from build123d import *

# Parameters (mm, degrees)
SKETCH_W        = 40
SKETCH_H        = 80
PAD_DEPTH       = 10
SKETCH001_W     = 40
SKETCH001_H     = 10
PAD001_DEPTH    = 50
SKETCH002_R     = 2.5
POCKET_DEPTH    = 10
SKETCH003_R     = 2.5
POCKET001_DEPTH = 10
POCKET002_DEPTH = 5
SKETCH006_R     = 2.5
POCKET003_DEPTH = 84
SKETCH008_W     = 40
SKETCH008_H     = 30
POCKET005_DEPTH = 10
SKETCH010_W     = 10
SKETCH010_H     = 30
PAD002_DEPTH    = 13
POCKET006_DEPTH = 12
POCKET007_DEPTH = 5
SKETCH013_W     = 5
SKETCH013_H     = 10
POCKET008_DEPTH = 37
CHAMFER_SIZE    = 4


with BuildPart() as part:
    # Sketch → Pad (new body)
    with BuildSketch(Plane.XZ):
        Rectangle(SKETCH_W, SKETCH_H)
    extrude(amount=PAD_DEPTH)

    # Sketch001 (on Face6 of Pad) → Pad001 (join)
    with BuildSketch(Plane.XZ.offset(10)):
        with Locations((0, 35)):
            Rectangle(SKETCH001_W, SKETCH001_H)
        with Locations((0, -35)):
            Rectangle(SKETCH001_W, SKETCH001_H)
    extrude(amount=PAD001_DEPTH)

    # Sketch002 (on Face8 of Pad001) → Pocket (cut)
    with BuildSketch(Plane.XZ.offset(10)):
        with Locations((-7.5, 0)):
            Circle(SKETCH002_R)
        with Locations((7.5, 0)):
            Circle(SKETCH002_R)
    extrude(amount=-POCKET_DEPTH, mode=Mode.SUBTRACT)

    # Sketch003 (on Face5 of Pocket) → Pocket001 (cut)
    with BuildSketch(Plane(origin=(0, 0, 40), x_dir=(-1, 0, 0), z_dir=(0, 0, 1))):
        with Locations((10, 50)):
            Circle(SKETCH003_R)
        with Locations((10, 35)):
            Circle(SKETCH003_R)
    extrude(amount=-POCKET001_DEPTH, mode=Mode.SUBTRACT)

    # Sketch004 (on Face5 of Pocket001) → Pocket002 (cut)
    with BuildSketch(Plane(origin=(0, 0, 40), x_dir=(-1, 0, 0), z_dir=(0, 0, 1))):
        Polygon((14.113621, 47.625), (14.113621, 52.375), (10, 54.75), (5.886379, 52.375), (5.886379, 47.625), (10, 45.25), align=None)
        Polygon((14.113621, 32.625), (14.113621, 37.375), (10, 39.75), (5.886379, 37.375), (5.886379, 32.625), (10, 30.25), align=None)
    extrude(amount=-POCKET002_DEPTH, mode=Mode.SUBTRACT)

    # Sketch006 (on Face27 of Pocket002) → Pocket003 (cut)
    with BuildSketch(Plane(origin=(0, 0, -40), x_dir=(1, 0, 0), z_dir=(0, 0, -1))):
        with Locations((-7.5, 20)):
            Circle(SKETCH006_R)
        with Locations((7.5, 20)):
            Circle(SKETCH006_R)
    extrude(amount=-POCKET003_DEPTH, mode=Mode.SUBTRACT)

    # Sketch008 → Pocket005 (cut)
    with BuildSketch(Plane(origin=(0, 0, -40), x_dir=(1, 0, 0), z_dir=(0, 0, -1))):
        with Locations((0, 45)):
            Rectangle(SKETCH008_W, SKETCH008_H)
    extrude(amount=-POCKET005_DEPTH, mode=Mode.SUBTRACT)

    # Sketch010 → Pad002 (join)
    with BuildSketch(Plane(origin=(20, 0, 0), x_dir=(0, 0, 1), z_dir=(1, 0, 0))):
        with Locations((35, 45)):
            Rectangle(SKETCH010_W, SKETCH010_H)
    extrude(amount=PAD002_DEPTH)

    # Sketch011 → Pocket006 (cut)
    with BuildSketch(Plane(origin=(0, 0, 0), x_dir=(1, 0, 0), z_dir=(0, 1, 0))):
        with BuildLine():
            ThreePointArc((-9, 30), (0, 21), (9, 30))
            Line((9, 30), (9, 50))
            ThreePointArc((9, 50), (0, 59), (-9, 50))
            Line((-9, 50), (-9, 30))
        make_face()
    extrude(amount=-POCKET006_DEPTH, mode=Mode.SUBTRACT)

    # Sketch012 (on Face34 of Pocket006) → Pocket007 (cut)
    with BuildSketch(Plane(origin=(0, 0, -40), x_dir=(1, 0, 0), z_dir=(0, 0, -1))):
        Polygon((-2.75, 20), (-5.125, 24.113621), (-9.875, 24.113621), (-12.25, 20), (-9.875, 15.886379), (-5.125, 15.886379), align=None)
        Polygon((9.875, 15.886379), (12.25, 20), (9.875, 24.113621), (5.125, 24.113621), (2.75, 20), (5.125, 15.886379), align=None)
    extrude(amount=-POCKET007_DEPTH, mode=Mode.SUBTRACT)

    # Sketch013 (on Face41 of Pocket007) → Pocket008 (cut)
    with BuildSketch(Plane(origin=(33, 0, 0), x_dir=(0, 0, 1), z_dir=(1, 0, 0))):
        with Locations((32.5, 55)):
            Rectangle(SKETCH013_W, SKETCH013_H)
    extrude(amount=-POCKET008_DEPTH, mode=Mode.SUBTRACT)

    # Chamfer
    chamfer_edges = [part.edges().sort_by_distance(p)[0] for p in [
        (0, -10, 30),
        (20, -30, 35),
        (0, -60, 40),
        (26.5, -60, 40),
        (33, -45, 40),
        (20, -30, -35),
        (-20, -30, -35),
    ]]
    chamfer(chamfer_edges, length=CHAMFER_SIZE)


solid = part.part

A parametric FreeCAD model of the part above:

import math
import FreeCAD as App
import Part
import Sketcher
Q = App.Units.Quantity


def edges_at(feature, points):
    """Names of the edges that pass closest to the given points."""
    edges = feature.Shape.Edges
    near = lambda p: min(range(len(edges)), key=lambda i: edges[i].distToShape(Part.Vertex(*p))[0])
    return sorted({f"Edge{near(p) + 1}" for p in points})

doc = App.newDocument("Part")
params = doc.addObject("Spreadsheet::Sheet", "Params")
for row, (alias, value) in enumerate([
    ("sketch1_width", "40 mm"),
    ("sketch1_height", "80 mm"),
    ("pad1_length", "10 mm"),
    ("sketch2_width", "40 mm"),
    ("sketch2_height", "10 mm"),
    ("pad2_length", "50 mm"),
    ("sketch3_diameter", "5 mm"),
    ("pocket1_length", "10 mm"),
    ("sketch4_diameter", "5 mm"),
    ("pocket2_length", "10 mm"),
    ("sketch5_height", "4.75 mm"),
    ("pocket3_length", "5 mm"),
    ("sketch6_diameter", "5 mm"),
    ("pocket4_length", "84 mm"),
    ("sketch7_width", "40 mm"),
    ("sketch7_height", "30 mm"),
    ("pocket5_length", "10 mm"),
    ("sketch8_width", "30 mm"),
    ("sketch8_height", "10 mm"),
    ("pad3_length", "13 mm"),
    ("sketch9_radius", "9 mm"),
    ("sketch9_height", "20 mm"),
    ("pocket6_length", "12 mm"),
    ("sketch10_width", "4.75 mm"),
    ("pocket7_length", "5 mm"),
    ("sketch11_width", "10 mm"),
    ("sketch11_height", "5 mm"),
    ("pocket8_length", "37 mm"),
    ("chamfer_size", "4 mm"),
], start=1):
    params.set(f"A{row}", alias)
    params.set(f"B{row}", "=" + value)
    params.setAlias(f"B{row}", alias)

body = doc.addObject("PartDesign::Body", "Body")

# Sketch on XZ plane
sketch1 = doc.addObject("Sketcher::SketchObject", "Sketch")
body.addObject(sketch1)
sketch1.AttachmentSupport = (doc.XZ_Plane, [""])
sketch1.MapMode = "FlatFace"
sketch1.addGeometry([
    Part.LineSegment(App.Vector(-20, 40, 0), App.Vector(-20, -40, 0)),
    Part.LineSegment(App.Vector(-20, -40, 0), App.Vector(20, -40, 0)),
    Part.LineSegment(App.Vector(20, -40, 0), App.Vector(20, 40, 0)),
    Part.LineSegment(App.Vector(20, 40, 0), App.Vector(-20, 40, 0)),
], False)
sketch1.addConstraint([
    Sketcher.Constraint("Coincident", 0, 2, 1, 1),
    Sketcher.Constraint("Coincident", 1, 2, 2, 1),
    Sketcher.Constraint("Coincident", 2, 2, 3, 1),
    Sketcher.Constraint("Coincident", 3, 2, 0, 1),
    Sketcher.Constraint("Vertical", 0),
    Sketcher.Constraint("Horizontal", 1),
    Sketcher.Constraint("Vertical", 2),
    Sketcher.Constraint("Horizontal", 3),
    Sketcher.Constraint("Symmetric", 0, 2, 2, 2, -1, 1),
    Sketcher.Constraint("DistanceX", 1, 1, 1, 2, Q("40 mm")),
    Sketcher.Constraint("DistanceY", 0, 2, 0, 1, Q("80 mm")),
])
sketch1.setExpression("Constraints[9]", "Params.sketch1_width")
sketch1.setExpression("Constraints[10]", "Params.sketch1_height")
pad1 = doc.addObject("PartDesign::Pad", "Pad")
body.addObject(pad1)
pad1.Profile = sketch1
pad1.setExpression("Length", "Params.pad1_length")

# Sketch on XZ plane
sketch2 = doc.addObject("Sketcher::SketchObject", "Sketch001")
body.addObject(sketch2)
sketch2.AttachmentSupport = (doc.XZ_Plane, [""])
sketch2.MapMode = "FlatFace"
sketch2.AttachmentOffset = App.Placement(App.Vector(0, 0, 10), App.Rotation())
sketch2.addGeometry([
    Part.LineSegment(App.Vector(-20, 40, 0), App.Vector(-20, 30, 0)),  # 0
    Part.LineSegment(App.Vector(-20, 30, 0), App.Vector(20, 30, 0)),  # 1
    Part.LineSegment(App.Vector(20, 30, 0), App.Vector(20, 40, 0)),  # 2
    Part.LineSegment(App.Vector(20, 40, 0), App.Vector(-20, 40, 0)),  # 3
    Part.LineSegment(App.Vector(-20, -30, 0), App.Vector(-20, -40, 0)),  # 4
    Part.LineSegment(App.Vector(-20, -40, 0), App.Vector(20, -40, 0)),  # 5
    Part.LineSegment(App.Vector(20, -40, 0), App.Vector(20, -30, 0)),  # 6
    Part.LineSegment(App.Vector(20, -30, 0), App.Vector(-20, -30, 0)),  # 7
], False)
sketch2.addConstraint([
    Sketcher.Constraint("Coincident", 0, 2, 1, 1),
    Sketcher.Constraint("Coincident", 1, 2, 2, 1),
    Sketcher.Constraint("Coincident", 2, 2, 3, 1),
    Sketcher.Constraint("Coincident", 3, 2, 0, 1),
    Sketcher.Constraint("Coincident", 4, 2, 5, 1),
    Sketcher.Constraint("Coincident", 5, 2, 6, 1),
    Sketcher.Constraint("Coincident", 6, 2, 7, 1),
    Sketcher.Constraint("Coincident", 7, 2, 4, 1),
    Sketcher.Constraint("Vertical", 0),
    Sketcher.Constraint("Horizontal", 1),
    Sketcher.Constraint("Vertical", 2),
    Sketcher.Constraint("Horizontal", 3),
    Sketcher.Constraint("Vertical", 4),
    Sketcher.Constraint("Horizontal", 5),
    Sketcher.Constraint("Vertical", 6),
    Sketcher.Constraint("Horizontal", 7),
    Sketcher.Constraint("Symmetric", 2, 2, 4, 2, -1, 1),
    Sketcher.Constraint("Symmetric", 0, 2, 6, 2, -1, 1),
    Sketcher.Constraint("Vertical", 3, 2, 4, 2),
    Sketcher.Constraint("DistanceX", 1, 1, 1, 2, Q("40 mm")),
    Sketcher.Constraint("DistanceY", 0, 2, 0, 1, Q("10 mm")),
    Sketcher.Constraint("DistanceY", -1, 1, 0, 2, Q("30 mm")),
])
sketch2.setExpression("Constraints[19]", "Params.sketch2_width")
sketch2.setExpression("Constraints[20]", "Params.sketch2_height")
pad2 = doc.addObject("PartDesign::Pad", "Pad001")
body.addObject(pad2)
pad2.Profile = sketch2
pad2.setExpression("Length", "Params.pad2_length")

# Sketch on XZ plane
sketch3 = doc.addObject("Sketcher::SketchObject", "Sketch002")
body.addObject(sketch3)
sketch3.AttachmentSupport = (doc.XZ_Plane, [""])
sketch3.MapMode = "FlatFace"
sketch3.AttachmentOffset = App.Placement(App.Vector(0, 0, 10), App.Rotation())
sketch3.addGeometry([
    Part.Circle(App.Vector(-7.5, 0, 0), App.Vector(0, 0, 1), 2.5),
    Part.Circle(App.Vector(7.5, 0, 0), App.Vector(0, 0, 1), 2.5),
], False)
sketch3.addConstraint([
    Sketcher.Constraint("Equal", 0, 1),
    Sketcher.Constraint("Symmetric", 0, 3, 1, 3, -1, 1),
    Sketcher.Constraint("PointOnObject", 0, 3, -1),
    Sketcher.Constraint("Diameter", 0, Q("5 mm")),
    Sketcher.Constraint("DistanceX", 0, 3, 1, 3, Q("15 mm")),
])
sketch3.setExpression("Constraints[3]", "Params.sketch3_diameter")
pocket1 = doc.addObject("PartDesign::Pocket", "Pocket")
body.addObject(pocket1)
pocket1.Profile = sketch3
pocket1.setExpression("Length", "Params.pocket1_length")

# Sketch on XY plane
sketch4 = doc.addObject("Sketcher::SketchObject", "Sketch003")
body.addObject(sketch4)
sketch4.AttachmentSupport = (doc.XY_Plane, [""])
sketch4.MapMode = "FlatFace"
sketch4.AttachmentOffset = App.Placement(App.Vector(0, 0, 40), App.Rotation())
sketch4.addGeometry([
    Part.Circle(App.Vector(-10, -50, 0), App.Vector(0, 0, 1), 2.5),
    Part.Circle(App.Vector(-10, -35, 0), App.Vector(0, 0, 1), 2.5),
], False)
sketch4.addConstraint([
    Sketcher.Constraint("Equal", 0, 1),
    Sketcher.Constraint("Vertical", 0, 3, 1, 3),
    Sketcher.Constraint("Diameter", 0, Q("5 mm")),
    Sketcher.Constraint("DistanceX", 0, 3, -1, 1, Q("10 mm")),
    Sketcher.Constraint("DistanceY", 0, 3, -1, 1, Q("50 mm")),
    Sketcher.Constraint("DistanceY", 1, 3, -1, 1, Q("35 mm")),
])
sketch4.setExpression("Constraints[2]", "Params.sketch4_diameter")
pocket2 = doc.addObject("PartDesign::Pocket", "Pocket001")
body.addObject(pocket2)
pocket2.Profile = sketch4
pocket2.setExpression("Length", "Params.pocket2_length")

# Sketch on XY plane
sketch5 = doc.addObject("Sketcher::SketchObject", "Sketch004")
body.addObject(sketch5)
sketch5.AttachmentSupport = (doc.XY_Plane, [""])
sketch5.MapMode = "FlatFace"
sketch5.AttachmentOffset = App.Placement(App.Vector(0, 0, 40), App.Rotation())
sketch5.addGeometry([
    Part.LineSegment(App.Vector(-14.1, -47.6, 0), App.Vector(-14.1, -52.4, 0)),  # 0
    Part.LineSegment(App.Vector(-14.1, -52.4, 0), App.Vector(-10, -54.8, 0)),  # 1
    Part.LineSegment(App.Vector(-10, -54.8, 0), App.Vector(-5.9, -52.4, 0)),  # 2
    Part.LineSegment(App.Vector(-5.9, -52.4, 0), App.Vector(-5.9, -47.6, 0)),  # 3
    Part.LineSegment(App.Vector(-5.9, -47.6, 0), App.Vector(-10, -45.2, 0)),  # 4
    Part.LineSegment(App.Vector(-10, -45.2, 0), App.Vector(-14.1, -47.6, 0)),  # 5
    Part.LineSegment(App.Vector(-14.1, -32.6, 0), App.Vector(-14.1, -37.4, 0)),  # 6
    Part.LineSegment(App.Vector(-14.1, -37.4, 0), App.Vector(-10, -39.8, 0)),  # 7
    Part.LineSegment(App.Vector(-10, -39.8, 0), App.Vector(-5.9, -37.4, 0)),  # 8
    Part.LineSegment(App.Vector(-5.9, -37.4, 0), App.Vector(-5.9, -32.6, 0)),  # 9
    Part.LineSegment(App.Vector(-5.9, -32.6, 0), App.Vector(-10, -30.2, 0)),  # 10
    Part.LineSegment(App.Vector(-10, -30.2, 0), App.Vector(-14.1, -32.6, 0)),  # 11
], False)
sketch5.addConstraint([
    Sketcher.Constraint("Coincident", 0, 2, 1, 1),
    Sketcher.Constraint("Coincident", 1, 2, 2, 1),
    Sketcher.Constraint("Coincident", 2, 2, 3, 1),
    Sketcher.Constraint("Coincident", 3, 2, 4, 1),
    Sketcher.Constraint("Coincident", 4, 2, 5, 1),
    Sketcher.Constraint("Coincident", 5, 2, 0, 1),
    Sketcher.Constraint("Coincident", 6, 2, 7, 1),
    Sketcher.Constraint("Coincident", 7, 2, 8, 1),
    Sketcher.Constraint("Coincident", 8, 2, 9, 1),
    Sketcher.Constraint("Coincident", 9, 2, 10, 1),
    Sketcher.Constraint("Coincident", 10, 2, 11, 1),
    Sketcher.Constraint("Coincident", 11, 2, 6, 1),
    Sketcher.Constraint("Vertical", 0),
    Sketcher.Constraint("Vertical", 3),
    Sketcher.Constraint("Vertical", 6),
    Sketcher.Constraint("Vertical", 9),
    Sketcher.Constraint("Parallel", 1, 4),
    Sketcher.Constraint("Parallel", 2, 5),
    Sketcher.Constraint("Parallel", 4, 7),
    Sketcher.Constraint("Parallel", 5, 8),
    Sketcher.Constraint("Parallel", 7, 10),
    Sketcher.Constraint("Parallel", 8, 11),
    Sketcher.Constraint("Horizontal", 0, 2, 2, 2),
    Sketcher.Constraint("Horizontal", 3, 2, 5, 2),
    Sketcher.Constraint("Horizontal", 6, 2, 8, 2),
    Sketcher.Constraint("Horizontal", 9, 2, 11, 2),
    Sketcher.Constraint("Vertical", 1, 2, 4, 2),
    Sketcher.Constraint("Vertical", 5, 2, 6, 2),
    Sketcher.Constraint("Vertical", 4, 2, 7, 2),
    Sketcher.Constraint("Equal", 3, 6),
    Sketcher.Constraint("Angle", 1, Q("-29.999998 deg")),
    Sketcher.Constraint("DistanceX", 1, 2, -1, 1, Q("10 mm")),
    Sketcher.Constraint("DistanceY", 0, 2, 6, 2, Q("15 mm")),
    Sketcher.Constraint("DistanceY", 0, 2, 0, 1, Q("4.75 mm")),
    Sketcher.Constraint("DistanceY", 1, 2, 4, 2, Q("9.5 mm")),
    Sketcher.Constraint("DistanceY", 1, 2, -1, 1, Q("54.75 mm")),
])
sketch5.setExpression("Constraints[33]", "Params.sketch5_height")
pocket3 = doc.addObject("PartDesign::Pocket", "Pocket002")
body.addObject(pocket3)
pocket3.Profile = sketch5
pocket3.setExpression("Length", "Params.pocket3_length")

# Sketch on XY plane
sketch6 = doc.addObject("Sketcher::SketchObject", "Sketch005")
body.addObject(sketch6)
sketch6.AttachmentSupport = (doc.XY_Plane, [""])
sketch6.MapMode = "FlatFace"
sketch6.AttachmentOffset = App.Placement(App.Vector(0, 0, -40), App.Rotation())
sketch6.addGeometry([
    Part.Circle(App.Vector(-7.5, -20, 0), App.Vector(0, 0, 1), 2.5),
    Part.Circle(App.Vector(7.5, -20, 0), App.Vector(0, 0, 1), 2.5),
], False)
sketch6.addConstraint([
    Sketcher.Constraint("Equal", 0, 1),
    Sketcher.Constraint("Symmetric", 0, 3, 1, 3, -2),
    Sketcher.Constraint("Diameter", 0, Q("5 mm")),
    Sketcher.Constraint("DistanceY", 0, 3, -1, 1, Q("20 mm")),
    Sketcher.Constraint("DistanceX", 0, 3, 1, 3, Q("15 mm")),
])
sketch6.setExpression("Constraints[2]", "Params.sketch6_diameter")
pocket4 = doc.addObject("PartDesign::Pocket", "Pocket003")
body.addObject(pocket4)
pocket4.Profile = sketch6
pocket4.setExpression("Length", "Params.pocket4_length")
pocket4.Reversed = True

# Sketch on XY plane
sketch7 = doc.addObject("Sketcher::SketchObject", "Sketch006")
body.addObject(sketch7)
sketch7.AttachmentSupport = (doc.XY_Plane, [""])
sketch7.MapMode = "FlatFace"
sketch7.AttachmentOffset = App.Placement(App.Vector(0, 0, -40), App.Rotation())
sketch7.addGeometry([
    Part.LineSegment(App.Vector(-20, -60, 0), App.Vector(-20, -30, 0)),
    Part.LineSegment(App.Vector(-20, -30, 0), App.Vector(20, -30, 0)),
    Part.LineSegment(App.Vector(20, -30, 0), App.Vector(20, -60, 0)),
    Part.LineSegment(App.Vector(20, -60, 0), App.Vector(-20, -60, 0)),
], False)
sketch7.addConstraint([
    Sketcher.Constraint("Coincident", 0, 2, 1, 1),
    Sketcher.Constraint("Coincident", 1, 2, 2, 1),
    Sketcher.Constraint("Coincident", 2, 2, 3, 1),
    Sketcher.Constraint("Coincident", 3, 2, 0, 1),
    Sketcher.Constraint("Vertical", 0),
    Sketcher.Constraint("Horizontal", 1),
    Sketcher.Constraint("Vertical", 2),
    Sketcher.Constraint("Horizontal", 3),
    Sketcher.Constraint("DistanceX", 1, 1, 1, 2, Q("40 mm")),
    Sketcher.Constraint("DistanceY", 0, 1, 0, 2, Q("30 mm")),
    Sketcher.Constraint("DistanceX", 0, 2, -1, 1, Q("20 mm")),
    Sketcher.Constraint("DistanceY", 0, 2, -1, 1, Q("30 mm")),
])
sketch7.setExpression("Constraints[8]", "Params.sketch7_width")
sketch7.setExpression("Constraints[9]", "Params.sketch7_height")
pocket5 = doc.addObject("PartDesign::Pocket", "Pocket004")
body.addObject(pocket5)
pocket5.Profile = sketch7
pocket5.setExpression("Length", "Params.pocket5_length")
pocket5.Reversed = True

# Sketch on YZ plane
sketch8 = doc.addObject("Sketcher::SketchObject", "Sketch007")
body.addObject(sketch8)
sketch8.AttachmentSupport = (doc.YZ_Plane, [""])
sketch8.MapMode = "FlatFace"
sketch8.AttachmentOffset = App.Placement(App.Vector(0, 0, 20), App.Rotation())
sketch8.addGeometry([
    Part.LineSegment(App.Vector(-60, 30, 0), App.Vector(-30, 30, 0)),
    Part.LineSegment(App.Vector(-30, 30, 0), App.Vector(-30, 40, 0)),
    Part.LineSegment(App.Vector(-30, 40, 0), App.Vector(-60, 40, 0)),
    Part.LineSegment(App.Vector(-60, 40, 0), App.Vector(-60, 30, 0)),
], False)
sketch8.addConstraint([
    Sketcher.Constraint("Coincident", 0, 2, 1, 1),
    Sketcher.Constraint("Coincident", 1, 2, 2, 1),
    Sketcher.Constraint("Coincident", 2, 2, 3, 1),
    Sketcher.Constraint("Coincident", 3, 2, 0, 1),
    Sketcher.Constraint("Horizontal", 0),
    Sketcher.Constraint("Vertical", 1),
    Sketcher.Constraint("Horizontal", 2),
    Sketcher.Constraint("Vertical", 3),
    Sketcher.Constraint("DistanceX", 0, 1, 0, 2, Q("30 mm")),
    Sketcher.Constraint("DistanceY", 1, 1, 1, 2, Q("10 mm")),
    Sketcher.Constraint("DistanceX", 0, 2, -1, 1, Q("30 mm")),
    Sketcher.Constraint("DistanceY", -1, 1, 0, 2, Q("30 mm")),
])
sketch8.setExpression("Constraints[8]", "Params.sketch8_width")
sketch8.setExpression("Constraints[9]", "Params.sketch8_height")
pad3 = doc.addObject("PartDesign::Pad", "Pad002")
body.addObject(pad3)
pad3.Profile = sketch8
pad3.setExpression("Length", "Params.pad3_length")

# Sketch on XZ plane
sketch9 = doc.addObject("Sketcher::SketchObject", "Sketch008")
body.addObject(sketch9)
sketch9.AttachmentSupport = (doc.XZ_Plane, [""])
sketch9.MapMode = "FlatFace"
sketch9.addGeometry([
    Part.ArcOfCircle(Part.Circle(App.Vector(0, -30, 0), App.Vector(0, 0, 1), 9), math.radians(0), math.radians(180)),
    Part.LineSegment(App.Vector(9, -30, 0), App.Vector(9, -50, 0)),
    Part.ArcOfCircle(Part.Circle(App.Vector(0, -50, 0), App.Vector(0, 0, 1), 9), math.radians(180), math.radians(360)),
    Part.LineSegment(App.Vector(-9, -50, 0), App.Vector(-9, -30, 0)),
], False)
sketch9.addConstraint([
    Sketcher.Constraint("Tangent", 0, 1, 1, 1),
    Sketcher.Constraint("Tangent", 1, 2, 2, 2),
    Sketcher.Constraint("Tangent", 2, 1, 3, 1),
    Sketcher.Constraint("Tangent", 3, 2, 0, 2),
    Sketcher.Constraint("Vertical", 1),
    Sketcher.Constraint("Vertical", 3),
    Sketcher.Constraint("PointOnObject", 0, 3, -2),
    Sketcher.Constraint("Radius", 0, Q("9 mm")),
    Sketcher.Constraint("DistanceY", 1, 2, 1, 1, Q("20 mm")),
    Sketcher.Constraint("DistanceY", 0, 3, -1, 1, Q("30 mm")),
])
sketch9.setExpression("Constraints[7]", "Params.sketch9_radius")
sketch9.setExpression("Constraints[8]", "Params.sketch9_height")
pocket6 = doc.addObject("PartDesign::Pocket", "Pocket005")
body.addObject(pocket6)
pocket6.Profile = sketch9
pocket6.setExpression("Length", "Params.pocket6_length")
pocket6.Reversed = True

# Sketch on XY plane
sketch10 = doc.addObject("Sketcher::SketchObject", "Sketch009")
body.addObject(sketch10)
sketch10.AttachmentSupport = (doc.XY_Plane, [""])
sketch10.MapMode = "FlatFace"
sketch10.AttachmentOffset = App.Placement(App.Vector(0, 0, -40), App.Rotation())
sketch10.addGeometry([
    Part.LineSegment(App.Vector(-2.8, -20, 0), App.Vector(-5.1, -24.1, 0)),  # 0
    Part.LineSegment(App.Vector(-5.1, -24.1, 0), App.Vector(-9.9, -24.1, 0)),  # 1
    Part.LineSegment(App.Vector(-9.9, -24.1, 0), App.Vector(-12.2, -20, 0)),  # 2
    Part.LineSegment(App.Vector(-12.2, -20, 0), App.Vector(-9.9, -15.9, 0)),  # 3
    Part.LineSegment(App.Vector(-9.9, -15.9, 0), App.Vector(-5.1, -15.9, 0)),  # 4
    Part.LineSegment(App.Vector(-5.1, -15.9, 0), App.Vector(-2.8, -20, 0)),  # 5
    Part.LineSegment(App.Vector(9.9, -15.9, 0), App.Vector(12.2, -20, 0)),  # 6
    Part.LineSegment(App.Vector(12.2, -20, 0), App.Vector(9.9, -24.1, 0)),  # 7
    Part.LineSegment(App.Vector(9.9, -24.1, 0), App.Vector(5.1, -24.1, 0)),  # 8
    Part.LineSegment(App.Vector(5.1, -24.1, 0), App.Vector(2.8, -20, 0)),  # 9
    Part.LineSegment(App.Vector(2.8, -20, 0), App.Vector(5.1, -15.9, 0)),  # 10
    Part.LineSegment(App.Vector(5.1, -15.9, 0), App.Vector(9.9, -15.9, 0)),  # 11
], False)
sketch10.addConstraint([
    Sketcher.Constraint("Coincident", 0, 2, 1, 1),
    Sketcher.Constraint("Coincident", 1, 2, 2, 1),
    Sketcher.Constraint("Coincident", 2, 2, 3, 1),
    Sketcher.Constraint("Coincident", 3, 2, 4, 1),
    Sketcher.Constraint("Coincident", 4, 2, 5, 1),
    Sketcher.Constraint("Coincident", 5, 2, 0, 1),
    Sketcher.Constraint("Coincident", 6, 2, 7, 1),
    Sketcher.Constraint("Coincident", 7, 2, 8, 1),
    Sketcher.Constraint("Coincident", 8, 2, 9, 1),
    Sketcher.Constraint("Coincident", 9, 2, 10, 1),
    Sketcher.Constraint("Coincident", 10, 2, 11, 1),
    Sketcher.Constraint("Coincident", 11, 2, 6, 1),
    Sketcher.Constraint("Horizontal", 1),
    Sketcher.Constraint("Horizontal", 4),
    Sketcher.Constraint("Horizontal", 8),
    Sketcher.Constraint("Horizontal", 11),
    Sketcher.Constraint("Symmetric", 2, 2, 6, 2, -2),
    Sketcher.Constraint("Symmetric", 1, 2, 7, 2, -2),
    Sketcher.Constraint("Symmetric", 5, 2, 9, 2, -2),
    Sketcher.Constraint("Symmetric", 4, 2, 10, 2, -2),
    Sketcher.Constraint("Parallel", 0, 3),
    Sketcher.Constraint("Parallel", 2, 5),
    Sketcher.Constraint("Parallel", 5, 6),
    Sketcher.Constraint("Parallel", 3, 7),
    Sketcher.Constraint("Parallel", 6, 9),
    Sketcher.Constraint("Horizontal", 2, 2, 5, 2),
    Sketcher.Constraint("Vertical", 1, 2, 3, 2),
    Sketcher.Constraint("Angle", 0, Q("-119.999998 deg")),
    Sketcher.Constraint("DistanceY", 2, 2, -1, 1, Q("20 mm")),
    Sketcher.Constraint("DistanceX", 5, 2, 6, 2, Q("15 mm")),
    Sketcher.Constraint("DistanceX", 1, 2, 1, 1, Q("4.75 mm")),
    Sketcher.Constraint("DistanceX", 2, 2, 5, 2, Q("9.5 mm")),
])
sketch10.setExpression("Constraints[30]", "Params.sketch10_width")
pocket7 = doc.addObject("PartDesign::Pocket", "Pocket006")
body.addObject(pocket7)
pocket7.Profile = sketch10
pocket7.setExpression("Length", "Params.pocket7_length")
pocket7.Reversed = True

# Sketch on YZ plane
sketch11 = doc.addObject("Sketcher::SketchObject", "Sketch010")
body.addObject(sketch11)
sketch11.AttachmentSupport = (doc.YZ_Plane, [""])
sketch11.MapMode = "FlatFace"
sketch11.AttachmentOffset = App.Placement(App.Vector(0, 0, 33), App.Rotation())
sketch11.addGeometry([
    Part.LineSegment(App.Vector(-60, 30, 0), App.Vector(-50, 30, 0)),
    Part.LineSegment(App.Vector(-50, 30, 0), App.Vector(-50, 35, 0)),
    Part.LineSegment(App.Vector(-50, 35, 0), App.Vector(-60, 35, 0)),
    Part.LineSegment(App.Vector(-60, 35, 0), App.Vector(-60, 30, 0)),
], False)
sketch11.addConstraint([
    Sketcher.Constraint("Coincident", 0, 2, 1, 1),
    Sketcher.Constraint("Coincident", 1, 2, 2, 1),
    Sketcher.Constraint("Coincident", 2, 2, 3, 1),
    Sketcher.Constraint("Coincident", 3, 2, 0, 1),
    Sketcher.Constraint("Horizontal", 0),
    Sketcher.Constraint("Vertical", 1),
    Sketcher.Constraint("Horizontal", 2),
    Sketcher.Constraint("Vertical", 3),
    Sketcher.Constraint("DistanceX", 0, 1, 0, 2, Q("10 mm")),
    Sketcher.Constraint("DistanceY", 1, 1, 1, 2, Q("5 mm")),
    Sketcher.Constraint("DistanceX", 0, 2, -1, 1, Q("50 mm")),
    Sketcher.Constraint("DistanceY", -1, 1, 0, 2, Q("30 mm")),
])
sketch11.setExpression("Constraints[8]", "Params.sketch11_width")
sketch11.setExpression("Constraints[9]", "Params.sketch11_height")
pocket8 = doc.addObject("PartDesign::Pocket", "Pocket007")
body.addObject(pocket8)
pocket8.Profile = sketch11
pocket8.setExpression("Length", "Params.pocket8_length")
doc.recompute()

chamfer = doc.addObject("PartDesign::Chamfer", "Chamfer")
body.addObject(chamfer)
chamfer.Base = (pocket8, edges_at(pocket8, [
    (0, -10, 30),
    (20, -30, 35),
    (6.5, -60, 40),
    (6.5, -60, 40),
    (33, -45, 40),
    (20, -30, -35),
    (-20, -30, -35),
]))
chamfer.setExpression("Size", "Params.chamfer_size")

doc.recompute()
